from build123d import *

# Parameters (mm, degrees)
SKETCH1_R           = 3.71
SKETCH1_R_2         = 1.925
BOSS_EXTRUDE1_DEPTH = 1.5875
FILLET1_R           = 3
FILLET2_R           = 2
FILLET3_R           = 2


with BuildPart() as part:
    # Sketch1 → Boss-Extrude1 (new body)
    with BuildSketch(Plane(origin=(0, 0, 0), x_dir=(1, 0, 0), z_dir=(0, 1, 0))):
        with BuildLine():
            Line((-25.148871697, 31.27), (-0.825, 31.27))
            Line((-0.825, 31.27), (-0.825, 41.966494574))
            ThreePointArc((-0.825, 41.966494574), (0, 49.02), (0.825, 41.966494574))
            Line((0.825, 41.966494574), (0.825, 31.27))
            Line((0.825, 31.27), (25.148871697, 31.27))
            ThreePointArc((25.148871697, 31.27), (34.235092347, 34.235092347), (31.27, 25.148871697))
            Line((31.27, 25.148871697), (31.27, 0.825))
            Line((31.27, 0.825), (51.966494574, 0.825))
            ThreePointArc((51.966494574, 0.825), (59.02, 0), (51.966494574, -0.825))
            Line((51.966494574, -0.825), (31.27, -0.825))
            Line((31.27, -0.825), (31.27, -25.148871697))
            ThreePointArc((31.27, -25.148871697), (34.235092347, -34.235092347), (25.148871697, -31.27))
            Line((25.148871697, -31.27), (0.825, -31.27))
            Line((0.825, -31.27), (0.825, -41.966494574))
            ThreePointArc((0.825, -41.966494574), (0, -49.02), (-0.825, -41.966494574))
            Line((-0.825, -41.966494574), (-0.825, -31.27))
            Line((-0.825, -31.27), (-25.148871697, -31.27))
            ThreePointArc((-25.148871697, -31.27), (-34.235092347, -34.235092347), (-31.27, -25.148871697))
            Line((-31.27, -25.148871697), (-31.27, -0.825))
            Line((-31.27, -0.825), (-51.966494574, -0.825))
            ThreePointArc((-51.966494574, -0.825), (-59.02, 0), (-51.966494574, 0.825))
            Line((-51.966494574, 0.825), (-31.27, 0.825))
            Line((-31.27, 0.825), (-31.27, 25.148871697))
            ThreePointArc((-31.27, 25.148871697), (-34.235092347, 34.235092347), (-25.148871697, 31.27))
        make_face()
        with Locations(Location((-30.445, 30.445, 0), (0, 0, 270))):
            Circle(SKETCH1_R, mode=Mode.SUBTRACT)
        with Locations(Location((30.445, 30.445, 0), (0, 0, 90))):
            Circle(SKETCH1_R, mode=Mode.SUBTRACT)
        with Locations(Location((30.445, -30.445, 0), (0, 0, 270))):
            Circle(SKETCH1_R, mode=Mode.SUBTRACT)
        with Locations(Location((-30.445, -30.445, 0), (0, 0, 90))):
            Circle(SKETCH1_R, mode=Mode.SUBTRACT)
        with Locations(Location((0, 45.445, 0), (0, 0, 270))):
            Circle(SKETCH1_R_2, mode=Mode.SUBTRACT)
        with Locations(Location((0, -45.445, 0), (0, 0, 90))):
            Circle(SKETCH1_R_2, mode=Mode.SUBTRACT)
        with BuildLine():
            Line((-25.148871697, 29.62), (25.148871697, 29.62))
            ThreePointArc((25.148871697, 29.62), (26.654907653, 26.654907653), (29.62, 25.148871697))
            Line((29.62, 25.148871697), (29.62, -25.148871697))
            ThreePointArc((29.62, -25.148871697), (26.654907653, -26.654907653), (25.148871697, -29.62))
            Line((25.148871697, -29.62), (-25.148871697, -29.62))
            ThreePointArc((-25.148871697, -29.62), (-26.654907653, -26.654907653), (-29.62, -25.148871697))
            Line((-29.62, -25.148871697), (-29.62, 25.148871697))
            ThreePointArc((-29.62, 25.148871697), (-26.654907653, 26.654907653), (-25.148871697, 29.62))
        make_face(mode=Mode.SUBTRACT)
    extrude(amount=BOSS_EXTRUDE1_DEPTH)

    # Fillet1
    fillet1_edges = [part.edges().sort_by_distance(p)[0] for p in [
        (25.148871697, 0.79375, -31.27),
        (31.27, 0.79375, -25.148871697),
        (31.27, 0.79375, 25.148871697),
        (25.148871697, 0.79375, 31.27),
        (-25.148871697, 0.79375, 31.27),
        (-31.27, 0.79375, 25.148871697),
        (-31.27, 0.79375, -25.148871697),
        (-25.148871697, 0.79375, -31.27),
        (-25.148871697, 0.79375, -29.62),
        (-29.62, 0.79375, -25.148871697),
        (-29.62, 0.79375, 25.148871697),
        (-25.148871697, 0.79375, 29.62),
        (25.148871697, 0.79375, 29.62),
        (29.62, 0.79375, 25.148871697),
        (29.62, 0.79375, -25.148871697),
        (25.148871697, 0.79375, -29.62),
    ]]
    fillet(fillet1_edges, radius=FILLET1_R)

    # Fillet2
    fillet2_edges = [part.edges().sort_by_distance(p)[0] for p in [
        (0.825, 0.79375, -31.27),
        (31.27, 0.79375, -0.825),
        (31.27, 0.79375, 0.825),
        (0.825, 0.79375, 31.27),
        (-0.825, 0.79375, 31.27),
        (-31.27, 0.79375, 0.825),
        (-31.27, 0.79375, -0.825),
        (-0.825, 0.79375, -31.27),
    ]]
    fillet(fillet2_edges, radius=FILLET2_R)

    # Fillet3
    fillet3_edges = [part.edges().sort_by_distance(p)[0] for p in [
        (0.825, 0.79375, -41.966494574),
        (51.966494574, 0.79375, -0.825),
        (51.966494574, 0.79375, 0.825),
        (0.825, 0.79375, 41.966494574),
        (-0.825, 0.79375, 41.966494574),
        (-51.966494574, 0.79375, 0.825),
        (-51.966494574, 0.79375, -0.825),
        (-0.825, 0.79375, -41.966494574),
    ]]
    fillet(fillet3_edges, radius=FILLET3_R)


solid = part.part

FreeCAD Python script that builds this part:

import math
import FreeCAD as App
import Part
import Sketcher
from FreeCAD import Vector


def edges_at(feature, points):
    """Names of the edges that pass closest to the given points."""
    edges = feature.Shape.Edges
    near = lambda p: min(range(len(edges)), key=lambda i: edges[i].distToShape(Part.Vertex(*p))[0])
    return sorted({f"Edge{near(p) + 1}" for p in points})

doc = App.newDocument("Part")
params = doc.addObject("Spreadsheet::Sheet", "Params")
for row, (alias, value) in enumerate([
    ("sketch1_diameter", "7.42 mm"),
    ("sketch1_diameter2", "3.85 mm"),
    ("sketch1_radius", "5.36 mm"),
    ("pad1_length", "1.5875 mm"),
    ("fillet_radius", "3 mm"),
    ("fillet2_radius", "2 mm"),
    ("fillet3_radius", "2 mm"),
], start=1):
    params.set(f"A{row}", alias)
    params.set(f"B{row}", "=" + value)
    params.setAlias(f"B{row}", alias)

body = doc.addObject("PartDesign::Body", "Body")

sketch1 = body.newObject("Sketcher::SketchObject", "Sketch")
sketch1.AttachmentSupport = (doc.getObject("XZ_Plane"), [""])
sketch1.MapMode = "FlatFace"
sketch1.addGeometry([
    Part.LineSegment(Vector(-0.825, -31.27, 0), Vector(-25.148872, -31.27, 0)),
    Part.ArcOfCircle(Part.Circle(Vector(-30.445, -30.445, 0), Vector(0, 0, 1), 5.36), math.radians(98.854044), math.radians(351.145956)),
    Part.LineSegment(Vector(-31.27, -25.148872, 0), Vector(-31.27, -0.825, 0)),
    Part.LineSegment(Vector(-31.27, -0.825, 0), Vector(-51.966495, -0.825, 0)),
    Part.ArcOfCircle(Part.Circle(Vector(-55.445, 0, 0), Vector(0, 0, 1), 3.575), math.radians(13.342364), math.radians(346.657636)),
    Part.LineSegment(Vector(-51.966495, 0.825, 0), Vector(-31.27, 0.825, 0)),
    Part.LineSegment(Vector(-31.27, 0.825, 0), Vector(-31.27, 25.148872, 0)),
    Part.ArcOfCircle(Part.Circle(Vector(-30.445, 30.445, 0), Vector(0, 0, 1), 5.36), math.radians(8.854044), math.radians(261.145956)),
    Part.LineSegment(Vector(-25.148872, 31.27, 0), Vector(-0.825, 31.27, 0)),
    Part.LineSegment(Vector(-0.825, 31.27, 0), Vector(-0.825, 41.966495, 0)),
    Part.ArcOfCircle(Part.Circle(Vector(0, 45.445, 0), Vector(0, 0, 1), 3.575), math.radians(-76.657636), math.radians(256.657636)),
    Part.LineSegment(Vector(0.825, 41.966495, 0), Vector(0.825, 31.27, 0)),
    Part.LineSegment(Vector(0.825, 31.27, 0), Vector(25.148872, 31.27, 0)),
    Part.ArcOfCircle(Part.Circle(Vector(30.445, 30.445, 0), Vector(0, 0, 1), 5.36), math.radians(-81.145956), math.radians(171.145956)),
    Part.LineSegment(Vector(31.27, 25.148872, 0), Vector(31.27, 0.825, 0)),
    Part.LineSegment(Vector(31.27, 0.825, 0), Vector(51.966495, 0.825, 0)),
    Part.ArcOfCircle(Part.Circle(Vector(55.445, 0, 0), Vector(0, 0, 1), 3.575), math.radians(-166.657636), math.radians(166.657636)),
    Part.LineSegment(Vector(51.966495, -0.825, 0), Vector(31.27, -0.825, 0)),
    Part.LineSegment(Vector(31.27, -0.825, 0), Vector(31.27, -25.148872, 0)),
    Part.ArcOfCircle(Part.Circle(Vector(30.445, -30.445, 0), Vector(0, 0, 1), 5.36), math.radians(-171.145956), math.radians(81.145956)),
    Part.LineSegment(Vector(25.148872, -31.27, 0), Vector(0.825, -31.27, 0)),
    Part.LineSegment(Vector(0.825, -31.27, 0), Vector(0.825, -41.966495, 0)),
    Part.ArcOfCircle(Part.Circle(Vector(0, -45.445, 0), Vector(0, 0, 1), 3.575), math.radians(103.342364), math.radians(436.657636)),
    Part.LineSegment(Vector(-0.825, -41.966495, 0), Vector(-0.825, -31.27, 0)),
    Part.Circle(Vector(30.445, 30.445, 0), Vector(0, 0, 1), 3.71),
    Part.Circle(Vector(0, 45.445, 0), Vector(0, 0, 1), 1.925),
    Part.Circle(Vector(-30.445, 30.445, 0), Vector(0, 0, 1), 3.71),
    Part.Circle(Vector(30.445, -30.445, 0), Vector(0, 0, 1), 3.71),
    Part.LineSegment(Vector(-25.148872, -29.62, 0), Vector(25.148872, -29.62, 0)),
    Part.ArcOfCircle(Part.Circle(Vector(30.445, -30.445, 0), Vector(0, 0, 1), 5.36), math.radians(98.854044), math.radians(171.145956)),
    Part.LineSegment(Vector(29.62, -25.148872, 0), Vector(29.62, 25.148872, 0)),
    Part.ArcOfCircle(Part.Circle(Vector(30.445, 30.445, 0), Vector(0, 0, 1), 5.36), math.radians(-171.145956), math.radians(-98.854044)),
    Part.LineSegment(Vector(25.148872, 29.62, 0), Vector(-25.148872, 29.62, 0)),
    Part.ArcOfCircle(Part.Circle(Vector(-30.445, 30.445, 0), Vector(0, 0, 1), 5.36), math.radians(-81.145956), math.radians(-8.854044)),
    Part.LineSegment(Vector(-29.62, 25.148872, 0), Vector(-29.62, -25.148872, 0)),
    Part.ArcOfCircle(Part.Circle(Vector(-30.445, -30.445, 0), Vector(0, 0, 1), 5.36), math.radians(8.854044), math.radians(81.145956)),
    Part.Circle(Vector(0, -45.445, 0), Vector(0, 0, 1), 1.925),
    Part.Circle(Vector(-30.445, -30.445, 0), Vector(0, 0, 1), 3.71),
], False)
sketch1.addConstraint([
    Sketcher.Constraint("Coincident", 0, 2, 1, 2),
    Sketcher.Constraint("Coincident", 1, 1, 2, 1),
    Sketcher.Constraint("Coincident", 2, 2, 3, 1),
    Sketcher.Constraint("Coincident", 3, 2, 4, 2),
    Sketcher.Constraint("Coincident", 4, 1, 5, 1),
    Sketcher.Constraint("Coincident", 5, 2, 6, 1),
    Sketcher.Constraint("Coincident", 6, 2, 7, 2),
    Sketcher.Constraint("Coincident", 7, 1, 8, 1),
    Sketcher.Constraint("Coincident", 8, 2, 9, 1),
    Sketcher.Constraint("Coincident", 9, 2, 10, 2),
    Sketcher.Constraint("Coincident", 10, 1, 11, 1),
    Sketcher.Constraint("Coincident", 11, 2, 12, 1),
    Sketcher.Constraint("Coincident", 12, 2, 13, 2),
    Sketcher.Constraint("Coincident", 13, 1, 14, 1),
    Sketcher.Constraint("Coincident", 14, 2, 15, 1),
    Sketcher.Constraint("Coincident", 15, 2, 16, 2),
    Sketcher.Constraint("Coincident", 16, 1, 17, 1),
    Sketcher.Constraint("Coincident", 17, 2, 18, 1),
    Sketcher.Constraint("Coincident", 18, 2, 19, 2),
    Sketcher.Constraint("Coincident", 19, 1, 20, 1),
    Sketcher.Constraint("Coincident", 20, 2, 21, 1),
    Sketcher.Constraint("Coincident", 21, 2, 22, 2),
    Sketcher.Constraint("Coincident", 22, 1, 23, 1),
    Sketcher.Constraint("Coincident", 23, 2, 0, 1),
    Sketcher.Constraint("Coincident", 28, 2, 29, 2),
    Sketcher.Constraint("Coincident", 29, 1, 30, 1),
    Sketcher.Constraint("Coincident", 30, 2, 31, 2),
    Sketcher.Constraint("Coincident", 31, 1, 32, 1),
    Sketcher.Constraint("Coincident", 32, 2, 33, 2),
    Sketcher.Constraint("Coincident", 33, 1, 34, 1),
    Sketcher.Constraint("Coincident", 34, 2, 35, 2),
    Sketcher.Constraint("Coincident", 35, 1, 28, 1),
    Sketcher.Constraint("Horizontal", 0),
    Sketcher.Constraint("Vertical", 2),
    Sketcher.Constraint("Horizontal", 3),
    Sketcher.Constraint("Horizontal", 5),
    Sketcher.Constraint("Vertical", 6),
    Sketcher.Constraint("Horizontal", 8),
    Sketcher.Constraint("Vertical", 9),
    Sketcher.Constraint("Vertical", 11),
    Sketcher.Constraint("Horizontal", 12),
    Sketcher.Constraint("Vertical", 14),
    Sketcher.Constraint("Horizontal", 15),
    Sketcher.Constraint("Horizontal", 17),
    Sketcher.Constraint("Vertical", 18),
    Sketcher.Constraint("Horizontal", 20),
    Sketcher.Constraint("Vertical", 21),
    Sketcher.Constraint("Vertical", 23),
    Sketcher.Constraint("Horizontal", 28),
    Sketcher.Constraint("Vertical", 30),
    Sketcher.Constraint("Horizontal", 32),
    Sketcher.Constraint("Vertical", 34),
    Sketcher.Constraint("Coincident", 24, 3, 13, 3),
    Sketcher.Constraint("Coincident", 25, 3, 10, 3),
    Sketcher.Constraint("Coincident", 26, 3, 7, 3),
    Sketcher.Constraint("Coincident", 27, 3, 19, 3),
    Sketcher.Constraint("Coincident", 29, 3, 19, 3),
    Sketcher.Constraint("Coincident", 31, 3, 13, 3),
    Sketcher.Constraint("Coincident", 33, 3, 7, 3),
    Sketcher.Constraint("Coincident", 35, 3, 1, 3),
    Sketcher.Constraint("Coincident", 36, 3, 22, 3),
    Sketcher.Constraint("Coincident", 37, 3, 1, 3),
    Sketcher.Constraint("Equal", 1, 7),
    Sketcher.Constraint("Equal", 4, 10),
    Sketcher.Constraint("Equal", 7, 13),
    Sketcher.Constraint("Equal", 10, 16),
    Sketcher.Constraint("Equal", 13, 19),
    Sketcher.Constraint("Equal", 16, 22),
    Sketcher.Constraint("Equal", 24, 26),
    Sketcher.Constraint("Equal", 26, 27),
    Sketcher.Constraint("Equal", 19, 29),
    Sketcher.Constraint("Equal", 29, 31),
    Sketcher.Constraint("Equal", 31, 33),
    Sketcher.Constraint("Equal", 33, 35),
    Sketcher.Constraint("Equal", 25, 36),
    Sketcher.Constraint("Equal", 27, 37),
    Sketcher.Constraint("Symmetric", 1, 3, 13, 3, -1, 1),
    Sketcher.Constraint("Symmetric", 4, 3, 16, 3, -1, 1),
    Sketcher.Constraint("Symmetric", 7, 3, 19, 3, -1, 1),
    Sketcher.Constraint("Symmetric", 10, 3, 22, 3, -1, 1),
    Sketcher.Constraint("Symmetric", 2, 2, 14, 2, -1, 1),
    Sketcher.Constraint("Symmetric", 5, 2, 17, 2, -1, 1),
    Sketcher.Constraint("Symmetric", 8, 2, 20, 2, -1, 1),
    Sketcher.Constraint("Symmetric", 11, 2, 23, 2, -1, 1),
    Sketcher.Constraint("Symmetric", 7, 3, 13, 3, -2),
    Sketcher.Constraint("Symmetric", 9, 2, 10, 1, -2),
    Sketcher.Constraint("Symmetric", 5, 2, 14, 2, -2),
    Sketcher.Constraint("PointOnObject", 4, 3, -1),
    Sketcher.Constraint("Horizontal", 8, 2, 11, 2),
    Sketcher.Constraint("Horizontal", 18, 2, 29, 1),
    Sketcher.Constraint("Horizontal", 30, 2, 33, 1),
    Sketcher.Constraint("Vertical", 19, 1, 28, 2),
    Sketcher.Constraint("Vertical", 28, 2, 31, 1),
    Sketcher.Constraint("Equal", 20, 2),
    Sketcher.Constraint("Equal", 32, 30),
    Sketcher.Constraint("Diameter", 24, 7.42),
    Sketcher.Constraint("Diameter", 25, 3.85),
    Sketcher.Constraint("Radius", 1, 5.36),
    Sketcher.Constraint("Radius", 4, 3.575),
    Sketcher.Constraint("DistanceX", 4, 3, 1, 3, 25.0),
    Sketcher.Constraint("DistanceY", 7, 3, 10, 3, 15.0),
    Sketcher.Constraint("DistanceY", 0, 2, -1, 1, 31.27),
    Sketcher.Constraint("DistanceX", 1, 1, -1, 1, 31.27),
    Sketcher.Constraint("DistanceY", 28, 2, -1, 1, 29.62),
    Sketcher.Constraint("DistanceY", 1, 3, 2, 2, 29.62),
])
sketch1.setExpression("Constraints[95]", "Params.sketch1_diameter")
sketch1.setExpression("Constraints[96]", "Params.sketch1_diameter2")
sketch1.setExpression("Constraints[97]", "Params.sketch1_radius")
pad1 = body.newObject("PartDesign::Pad", "Pad")
pad1.Profile = sketch1
pad1.setExpression("Length", "Params.pad1_length")
pad1.Reversed = True
doc.recompute()

fillet = body.newObject("PartDesign::Fillet", "Fillet")
fillet.Base = (pad1, edges_at(pad1, [
    (25.149, 0.794, -31.27),
    (31.27, 0.794, -25.149),
    (31.27, 0.794, 25.149),
    (25.149, 0.794, 31.27),
    (-25.149, 0.794, 31.27),
    (-31.27, 0.794, 25.149),
    (-31.27, 0.794, -25.149),
    (-25.149, 0.794, -31.27),
    (-25.149, 0.794, -29.62),
    (-29.62, 0.794, -25.149),
    (-29.62, 0.794, 25.149),
    (-25.149, 0.794, 29.62),
    (25.149, 0.794, 29.62),
    (29.62, 0.794, 25.149),
    (29.62, 0.794, -25.149),
    (25.149, 0.794, -29.62),
]))
fillet.setExpression("Radius", "Params.fillet_radius")
doc.recompute()

fillet2 = body.newObject("PartDesign::Fillet", "Fillet001")
fillet2.Base = (fillet, edges_at(fillet, [
    (0.825, 0.794, -31.27),
    (31.27, 0.794, -0.825),
    (31.27, 0.794, 0.825),
    (0.825, 0.794, 31.27),
    (-0.825, 0.794, 31.27),
    (-31.27, 0.794, 0.825),
    (-31.27, 0.794, -0.825),
    (-0.825, 0.794, -31.27),
]))
fillet2.setExpression("Radius", "Params.fillet2_radius")
doc.recompute()

fillet3 = body.newObject("PartDesign::Fillet", "Fillet002")
fillet3.Base = (fillet2, edges_at(fillet2, [
    (0.825, 0.794, -41.966),
    (51.966, 0.794, -0.825),
    (51.966, 0.794, 0.825),
    (0.825, 0.794, 41.966),
    (-0.825, 0.794, 41.966),
    (-51.966, 0.794, 0.825),
    (-51.966, 0.794, -0.825),
    (-0.825, 0.794, -41.966),
]))
fillet3.setExpression("Radius", "Params.fillet3_radius")

doc.recompute()
